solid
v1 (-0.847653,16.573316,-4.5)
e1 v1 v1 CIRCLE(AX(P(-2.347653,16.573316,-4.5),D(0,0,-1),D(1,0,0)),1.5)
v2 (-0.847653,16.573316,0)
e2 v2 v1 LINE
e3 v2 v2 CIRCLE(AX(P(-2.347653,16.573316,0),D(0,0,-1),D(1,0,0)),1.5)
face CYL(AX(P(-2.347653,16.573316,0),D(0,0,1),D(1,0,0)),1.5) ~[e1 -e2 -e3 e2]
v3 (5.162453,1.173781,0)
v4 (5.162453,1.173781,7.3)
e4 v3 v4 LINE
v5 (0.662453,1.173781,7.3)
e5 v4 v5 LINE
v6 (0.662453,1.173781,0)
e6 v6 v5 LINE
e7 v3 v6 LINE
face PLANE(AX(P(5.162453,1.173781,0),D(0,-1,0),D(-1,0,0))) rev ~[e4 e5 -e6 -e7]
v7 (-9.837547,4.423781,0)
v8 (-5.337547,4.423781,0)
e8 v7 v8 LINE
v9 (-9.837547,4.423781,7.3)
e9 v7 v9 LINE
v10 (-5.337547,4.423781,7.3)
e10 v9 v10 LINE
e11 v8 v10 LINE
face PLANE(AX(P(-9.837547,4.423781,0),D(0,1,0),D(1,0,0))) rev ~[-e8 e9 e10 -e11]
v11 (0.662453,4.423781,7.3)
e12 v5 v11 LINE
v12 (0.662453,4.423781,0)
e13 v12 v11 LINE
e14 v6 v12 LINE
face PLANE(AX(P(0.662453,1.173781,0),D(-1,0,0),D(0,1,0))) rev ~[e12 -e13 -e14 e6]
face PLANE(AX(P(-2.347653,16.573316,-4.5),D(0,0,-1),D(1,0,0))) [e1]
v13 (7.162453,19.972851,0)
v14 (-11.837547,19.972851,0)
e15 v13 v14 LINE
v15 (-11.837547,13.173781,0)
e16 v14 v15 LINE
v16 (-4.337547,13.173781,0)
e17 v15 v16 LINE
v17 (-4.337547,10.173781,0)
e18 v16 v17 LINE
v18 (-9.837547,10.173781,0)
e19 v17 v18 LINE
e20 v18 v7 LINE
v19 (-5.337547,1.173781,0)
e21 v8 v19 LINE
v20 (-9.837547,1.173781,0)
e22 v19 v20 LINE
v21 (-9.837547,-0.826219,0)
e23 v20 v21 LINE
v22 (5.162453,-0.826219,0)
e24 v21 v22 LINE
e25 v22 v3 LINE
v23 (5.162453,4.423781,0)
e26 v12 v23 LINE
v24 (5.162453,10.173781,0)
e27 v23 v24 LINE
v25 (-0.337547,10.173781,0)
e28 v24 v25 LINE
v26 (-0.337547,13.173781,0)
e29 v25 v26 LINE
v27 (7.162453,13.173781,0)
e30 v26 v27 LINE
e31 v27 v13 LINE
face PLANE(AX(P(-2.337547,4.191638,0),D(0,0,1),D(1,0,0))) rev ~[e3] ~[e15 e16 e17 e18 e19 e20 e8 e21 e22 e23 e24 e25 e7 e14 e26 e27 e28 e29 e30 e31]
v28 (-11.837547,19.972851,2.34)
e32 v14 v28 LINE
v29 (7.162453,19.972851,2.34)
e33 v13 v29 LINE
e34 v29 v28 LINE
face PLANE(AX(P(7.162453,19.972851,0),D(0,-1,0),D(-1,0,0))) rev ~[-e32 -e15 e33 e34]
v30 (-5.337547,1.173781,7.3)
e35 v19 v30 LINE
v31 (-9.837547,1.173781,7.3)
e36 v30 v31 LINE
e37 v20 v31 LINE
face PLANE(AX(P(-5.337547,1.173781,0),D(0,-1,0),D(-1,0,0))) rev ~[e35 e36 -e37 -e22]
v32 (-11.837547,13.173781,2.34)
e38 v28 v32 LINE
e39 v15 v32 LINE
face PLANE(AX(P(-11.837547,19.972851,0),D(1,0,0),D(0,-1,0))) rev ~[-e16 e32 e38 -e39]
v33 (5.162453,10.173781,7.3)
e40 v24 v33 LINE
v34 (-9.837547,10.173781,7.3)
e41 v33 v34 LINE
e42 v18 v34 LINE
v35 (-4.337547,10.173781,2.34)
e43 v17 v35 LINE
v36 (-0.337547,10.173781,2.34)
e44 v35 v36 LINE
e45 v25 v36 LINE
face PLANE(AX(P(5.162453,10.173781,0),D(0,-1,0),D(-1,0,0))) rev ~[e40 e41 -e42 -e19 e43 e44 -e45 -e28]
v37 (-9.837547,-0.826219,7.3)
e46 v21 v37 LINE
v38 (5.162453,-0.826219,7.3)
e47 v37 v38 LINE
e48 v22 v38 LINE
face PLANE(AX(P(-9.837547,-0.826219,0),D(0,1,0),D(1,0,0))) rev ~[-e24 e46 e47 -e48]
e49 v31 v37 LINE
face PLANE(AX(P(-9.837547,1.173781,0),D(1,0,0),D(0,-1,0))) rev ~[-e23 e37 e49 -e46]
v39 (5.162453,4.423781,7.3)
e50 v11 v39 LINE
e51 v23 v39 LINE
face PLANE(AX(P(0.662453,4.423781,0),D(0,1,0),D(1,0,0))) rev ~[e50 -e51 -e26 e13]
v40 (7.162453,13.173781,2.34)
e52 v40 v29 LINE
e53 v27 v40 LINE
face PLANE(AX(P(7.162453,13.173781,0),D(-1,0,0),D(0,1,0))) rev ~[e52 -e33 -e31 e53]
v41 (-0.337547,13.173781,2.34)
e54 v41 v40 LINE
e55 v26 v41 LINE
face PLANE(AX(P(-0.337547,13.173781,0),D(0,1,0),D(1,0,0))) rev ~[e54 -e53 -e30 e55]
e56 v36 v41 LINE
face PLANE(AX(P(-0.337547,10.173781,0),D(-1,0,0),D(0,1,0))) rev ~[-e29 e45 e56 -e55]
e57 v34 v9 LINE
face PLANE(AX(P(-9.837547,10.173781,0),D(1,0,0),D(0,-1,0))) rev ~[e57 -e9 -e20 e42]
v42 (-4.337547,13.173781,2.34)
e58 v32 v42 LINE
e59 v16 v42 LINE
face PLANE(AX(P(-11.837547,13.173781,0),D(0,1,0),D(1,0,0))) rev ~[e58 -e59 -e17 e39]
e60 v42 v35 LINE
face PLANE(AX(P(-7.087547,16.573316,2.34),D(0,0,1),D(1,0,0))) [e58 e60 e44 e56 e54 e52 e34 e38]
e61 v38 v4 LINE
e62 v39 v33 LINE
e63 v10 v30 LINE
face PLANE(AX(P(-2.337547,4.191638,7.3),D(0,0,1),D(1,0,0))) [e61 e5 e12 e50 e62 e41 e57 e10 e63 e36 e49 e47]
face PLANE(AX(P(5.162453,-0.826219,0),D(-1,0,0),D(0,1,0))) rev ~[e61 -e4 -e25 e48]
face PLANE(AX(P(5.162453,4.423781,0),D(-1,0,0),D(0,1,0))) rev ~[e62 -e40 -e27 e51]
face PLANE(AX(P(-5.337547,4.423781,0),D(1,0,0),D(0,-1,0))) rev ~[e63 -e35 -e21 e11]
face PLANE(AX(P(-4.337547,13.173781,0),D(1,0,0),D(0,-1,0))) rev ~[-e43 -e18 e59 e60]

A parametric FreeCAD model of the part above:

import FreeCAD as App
import Part
import Sketcher
from FreeCAD import Vector
Q = App.Units.Quantity


def add_polygon(sketch, points):
    """Adds a closed chain of lines whose ends are joined by coincident constraints."""
    first, n = sketch.GeometryCount, len(points)
    for a, b in zip(points, points[1:] + points[:1]):
        sketch.addGeometry(Part.LineSegment(App.Vector(*a, 0), App.Vector(*b, 0)), False)
    for i in range(n):
        sketch.addConstraint(Sketcher.Constraint("Coincident", first + i, 2, first + (i + 1) % n, 1))

doc = App.newDocument("Part")
params = doc.addObject("Spreadsheet::Sheet", "Params")
for row, (alias, value) in enumerate([
    ("sketch1_width", "4 mm"),
    ("sketch1_width2", "19 mm"),
    ("sketch1_height", "3 mm"),
    ("pad1_length", "2.34 mm"),
    ("sketch2_width", "15 mm"),
    ("sketch2_height", "2 mm"),
    ("sketch2_width2", "4.5 mm"),
    ("sketch2_height2", "5.75 mm"),
    ("pad2_length", "7.3 mm"),
    ("sketch3_diameter", "3 mm"),
    ("pad3_length", "4.5 mm"),
], start=1):
    params.set(f"A{row}", alias)
    params.set(f"B{row}", "=" + value)
    params.setAlias(f"B{row}", alias)

body = doc.addObject("PartDesign::Body", "Body")

# Sketch on XY plane
sketch1 = doc.addObject("Sketcher::SketchObject", "Sketch")
body.addObject(sketch1)
sketch1.AttachmentSupport = (doc.XY_Plane, [""])
sketch1.MapMode = "FlatFace"
add_polygon(sketch1, [(-11.8, 13.2), (-4.3, 13.2), (-4.3, 10.2), (-0.3, 10.2), (-0.3, 13.2), (7.2, 13.2), (7.2, 20), (-11.8, 20)])  # lines 0-7
sketch1.addConstraint(Sketcher.Constraint("Horizontal", 0))
sketch1.addConstraint(Sketcher.Constraint("Vertical", 1))
sketch1.addConstraint(Sketcher.Constraint("Horizontal", 2))
sketch1.addConstraint(Sketcher.Constraint("Vertical", 3))
sketch1.addConstraint(Sketcher.Constraint("Horizontal", 4))
sketch1.addConstraint(Sketcher.Constraint("Vertical", 5))
sketch1.addConstraint(Sketcher.Constraint("Horizontal", 6))
sketch1.addConstraint(Sketcher.Constraint("Vertical", 7))
sketch1.addConstraint(Sketcher.Constraint("Horizontal", 0, 2, 3, 2))
sketch1.addConstraint(Sketcher.Constraint("Equal", 0, 4))
sketch1.addConstraint(Sketcher.Constraint("DistanceX", 2, 1, 2, 2, Q("4 mm")))
sketch1.addConstraint(Sketcher.Constraint("DistanceX", 6, 2, 6, 1, Q("19 mm")))
sketch1.addConstraint(Sketcher.Constraint("DistanceY", 1, 2, 1, 1, Q("3 mm")))
sketch1.addConstraint(Sketcher.Constraint("DistanceY", 5, 1, 5, 2, Q("6.79907 mm")))
sketch1.addConstraint(Sketcher.Constraint("DistanceY", -1, 1, 0, 2, Q("13.173781 mm")))
sketch1.addConstraint(Sketcher.Constraint("DistanceX", 0, 2, -1, 1, Q("4.337547 mm")))
sketch1.setExpression("Constraints[18]", "Params.sketch1_width")
sketch1.setExpression("Constraints[19]", "Params.sketch1_width2")
sketch1.setExpression("Constraints[20]", "Params.sketch1_height")
pad1 = doc.addObject("PartDesign::Pad", "Pad")
body.addObject(pad1)
pad1.Profile = sketch1
pad1.setExpression("Length", "Params.pad1_length")

# Sketch on XY plane
sketch2 = doc.addObject("Sketcher::SketchObject", "Sketch001")
body.addObject(sketch2)
sketch2.AttachmentSupport = (doc.XY_Plane, [""])
sketch2.MapMode = "FlatFace"
add_polygon(sketch2, [(-9.8, 10.2), (-9.8, 4.4), (-5.3, 4.4), (-5.3, 1.2), (-9.8, 1.2), (-9.8, -0.8), (5.2, -0.8), (5.2, 1.2), (0.7, 1.2), (0.7, 4.4), (5.2, 4.4), (5.2, 10.2)])  # lines 0-11
sketch2.addConstraint(Sketcher.Constraint("Vertical", 0))
sketch2.addConstraint(Sketcher.Constraint("Horizontal", 1))
sketch2.addConstraint(Sketcher.Constraint("Vertical", 2))
sketch2.addConstraint(Sketcher.Constraint("Horizontal", 3))
sketch2.addConstraint(Sketcher.Constraint("Vertical", 4))
sketch2.addConstraint(Sketcher.Constraint("Horizontal", 5))
sketch2.addConstraint(Sketcher.Constraint("Vertical", 6))
sketch2.addConstraint(Sketcher.Constraint("Horizontal", 7))
sketch2.addConstraint(Sketcher.Constraint("Vertical", 8))
sketch2.addConstraint(Sketcher.Constraint("Horizontal", 9))
sketch2.addConstraint(Sketcher.Constraint("Vertical", 10))
sketch2.addConstraint(Sketcher.Constraint("Horizontal", 11))
sketch2.addConstraint(Sketcher.Constraint("Horizontal", 3, 2, 6, 2))
sketch2.addConstraint(Sketcher.Constraint("Horizontal", 1, 2, 8, 2))
sketch2.addConstraint(Sketcher.Constraint("Vertical", 0, 2, 3, 2))
sketch2.addConstraint(Sketcher.Constraint("Vertical", 6, 2, 9, 2))
sketch2.addConstraint(Sketcher.Constraint("Equal", 3, 7))
sketch2.addConstraint(Sketcher.Constraint("DistanceX", 5, 1, 5, 2, Q("15 mm")))
sketch2.addConstraint(Sketcher.Constraint("DistanceY", 4, 2, 4, 1, Q("2 mm")))
sketch2.addConstraint(Sketcher.Constraint("DistanceX", 1, 1, 1, 2, Q("4.5 mm")))
sketch2.addConstraint(Sketcher.Constraint("DistanceY", 6, 2, 10, 2, Q("9 mm")))
sketch2.addConstraint(Sketcher.Constraint("DistanceY", 0, 2, 0, 1, Q("5.75 mm")))
sketch2.addConstraint(Sketcher.Constraint("DistanceY", -1, 1, 0, 2, Q("4.423781 mm")))
sketch2.addConstraint(Sketcher.Constraint("DistanceX", 0, 2, -1, 1, Q("9.837547 mm")))
sketch2.setExpression("Constraints[29]", "Params.sketch2_width")
sketch2.setExpression("Constraints[30]", "Params.sketch2_height")
sketch2.setExpression("Constraints[31]", "Params.sketch2_width2")
sketch2.setExpression("Constraints[33]", "Params.sketch2_height2")
pad2 = doc.addObject("PartDesign::Pad", "Pad001")
body.addObject(pad2)
pad2.Profile = sketch2
pad2.setExpression("Length", "Params.pad2_length")

# Sketch on XY plane
sketch3 = doc.addObject("Sketcher::SketchObject", "Sketch002")
body.addObject(sketch3)
sketch3.AttachmentSupport = (doc.XY_Plane, [""])
sketch3.MapMode = "FlatFace"
sketch3.addGeometry(Part.Circle(Vector(-2.3, 16.6, 0), Vector(0, 0, 1), 1.5), False)
sketch3.addConstraint(Sketcher.Constraint("Diameter", 0, Q("3 mm")))
sketch3.addConstraint(Sketcher.Constraint("DistanceX", 0, 3, -1, 1, Q("2.347653 mm")))
sketch3.addConstraint(Sketcher.Constraint("DistanceY", -1, 1, 0, 3, Q("16.573316 mm")))
sketch3.setExpression("Constraints[0]", "Params.sketch3_diameter")
pad3 = doc.addObject("PartDesign::Pad", "Pad002")
body.addObject(pad3)
pad3.Profile = sketch3
pad3.setExpression("Length", "Params.pad3_length")
pad3.Reversed = True

doc.recompute()
